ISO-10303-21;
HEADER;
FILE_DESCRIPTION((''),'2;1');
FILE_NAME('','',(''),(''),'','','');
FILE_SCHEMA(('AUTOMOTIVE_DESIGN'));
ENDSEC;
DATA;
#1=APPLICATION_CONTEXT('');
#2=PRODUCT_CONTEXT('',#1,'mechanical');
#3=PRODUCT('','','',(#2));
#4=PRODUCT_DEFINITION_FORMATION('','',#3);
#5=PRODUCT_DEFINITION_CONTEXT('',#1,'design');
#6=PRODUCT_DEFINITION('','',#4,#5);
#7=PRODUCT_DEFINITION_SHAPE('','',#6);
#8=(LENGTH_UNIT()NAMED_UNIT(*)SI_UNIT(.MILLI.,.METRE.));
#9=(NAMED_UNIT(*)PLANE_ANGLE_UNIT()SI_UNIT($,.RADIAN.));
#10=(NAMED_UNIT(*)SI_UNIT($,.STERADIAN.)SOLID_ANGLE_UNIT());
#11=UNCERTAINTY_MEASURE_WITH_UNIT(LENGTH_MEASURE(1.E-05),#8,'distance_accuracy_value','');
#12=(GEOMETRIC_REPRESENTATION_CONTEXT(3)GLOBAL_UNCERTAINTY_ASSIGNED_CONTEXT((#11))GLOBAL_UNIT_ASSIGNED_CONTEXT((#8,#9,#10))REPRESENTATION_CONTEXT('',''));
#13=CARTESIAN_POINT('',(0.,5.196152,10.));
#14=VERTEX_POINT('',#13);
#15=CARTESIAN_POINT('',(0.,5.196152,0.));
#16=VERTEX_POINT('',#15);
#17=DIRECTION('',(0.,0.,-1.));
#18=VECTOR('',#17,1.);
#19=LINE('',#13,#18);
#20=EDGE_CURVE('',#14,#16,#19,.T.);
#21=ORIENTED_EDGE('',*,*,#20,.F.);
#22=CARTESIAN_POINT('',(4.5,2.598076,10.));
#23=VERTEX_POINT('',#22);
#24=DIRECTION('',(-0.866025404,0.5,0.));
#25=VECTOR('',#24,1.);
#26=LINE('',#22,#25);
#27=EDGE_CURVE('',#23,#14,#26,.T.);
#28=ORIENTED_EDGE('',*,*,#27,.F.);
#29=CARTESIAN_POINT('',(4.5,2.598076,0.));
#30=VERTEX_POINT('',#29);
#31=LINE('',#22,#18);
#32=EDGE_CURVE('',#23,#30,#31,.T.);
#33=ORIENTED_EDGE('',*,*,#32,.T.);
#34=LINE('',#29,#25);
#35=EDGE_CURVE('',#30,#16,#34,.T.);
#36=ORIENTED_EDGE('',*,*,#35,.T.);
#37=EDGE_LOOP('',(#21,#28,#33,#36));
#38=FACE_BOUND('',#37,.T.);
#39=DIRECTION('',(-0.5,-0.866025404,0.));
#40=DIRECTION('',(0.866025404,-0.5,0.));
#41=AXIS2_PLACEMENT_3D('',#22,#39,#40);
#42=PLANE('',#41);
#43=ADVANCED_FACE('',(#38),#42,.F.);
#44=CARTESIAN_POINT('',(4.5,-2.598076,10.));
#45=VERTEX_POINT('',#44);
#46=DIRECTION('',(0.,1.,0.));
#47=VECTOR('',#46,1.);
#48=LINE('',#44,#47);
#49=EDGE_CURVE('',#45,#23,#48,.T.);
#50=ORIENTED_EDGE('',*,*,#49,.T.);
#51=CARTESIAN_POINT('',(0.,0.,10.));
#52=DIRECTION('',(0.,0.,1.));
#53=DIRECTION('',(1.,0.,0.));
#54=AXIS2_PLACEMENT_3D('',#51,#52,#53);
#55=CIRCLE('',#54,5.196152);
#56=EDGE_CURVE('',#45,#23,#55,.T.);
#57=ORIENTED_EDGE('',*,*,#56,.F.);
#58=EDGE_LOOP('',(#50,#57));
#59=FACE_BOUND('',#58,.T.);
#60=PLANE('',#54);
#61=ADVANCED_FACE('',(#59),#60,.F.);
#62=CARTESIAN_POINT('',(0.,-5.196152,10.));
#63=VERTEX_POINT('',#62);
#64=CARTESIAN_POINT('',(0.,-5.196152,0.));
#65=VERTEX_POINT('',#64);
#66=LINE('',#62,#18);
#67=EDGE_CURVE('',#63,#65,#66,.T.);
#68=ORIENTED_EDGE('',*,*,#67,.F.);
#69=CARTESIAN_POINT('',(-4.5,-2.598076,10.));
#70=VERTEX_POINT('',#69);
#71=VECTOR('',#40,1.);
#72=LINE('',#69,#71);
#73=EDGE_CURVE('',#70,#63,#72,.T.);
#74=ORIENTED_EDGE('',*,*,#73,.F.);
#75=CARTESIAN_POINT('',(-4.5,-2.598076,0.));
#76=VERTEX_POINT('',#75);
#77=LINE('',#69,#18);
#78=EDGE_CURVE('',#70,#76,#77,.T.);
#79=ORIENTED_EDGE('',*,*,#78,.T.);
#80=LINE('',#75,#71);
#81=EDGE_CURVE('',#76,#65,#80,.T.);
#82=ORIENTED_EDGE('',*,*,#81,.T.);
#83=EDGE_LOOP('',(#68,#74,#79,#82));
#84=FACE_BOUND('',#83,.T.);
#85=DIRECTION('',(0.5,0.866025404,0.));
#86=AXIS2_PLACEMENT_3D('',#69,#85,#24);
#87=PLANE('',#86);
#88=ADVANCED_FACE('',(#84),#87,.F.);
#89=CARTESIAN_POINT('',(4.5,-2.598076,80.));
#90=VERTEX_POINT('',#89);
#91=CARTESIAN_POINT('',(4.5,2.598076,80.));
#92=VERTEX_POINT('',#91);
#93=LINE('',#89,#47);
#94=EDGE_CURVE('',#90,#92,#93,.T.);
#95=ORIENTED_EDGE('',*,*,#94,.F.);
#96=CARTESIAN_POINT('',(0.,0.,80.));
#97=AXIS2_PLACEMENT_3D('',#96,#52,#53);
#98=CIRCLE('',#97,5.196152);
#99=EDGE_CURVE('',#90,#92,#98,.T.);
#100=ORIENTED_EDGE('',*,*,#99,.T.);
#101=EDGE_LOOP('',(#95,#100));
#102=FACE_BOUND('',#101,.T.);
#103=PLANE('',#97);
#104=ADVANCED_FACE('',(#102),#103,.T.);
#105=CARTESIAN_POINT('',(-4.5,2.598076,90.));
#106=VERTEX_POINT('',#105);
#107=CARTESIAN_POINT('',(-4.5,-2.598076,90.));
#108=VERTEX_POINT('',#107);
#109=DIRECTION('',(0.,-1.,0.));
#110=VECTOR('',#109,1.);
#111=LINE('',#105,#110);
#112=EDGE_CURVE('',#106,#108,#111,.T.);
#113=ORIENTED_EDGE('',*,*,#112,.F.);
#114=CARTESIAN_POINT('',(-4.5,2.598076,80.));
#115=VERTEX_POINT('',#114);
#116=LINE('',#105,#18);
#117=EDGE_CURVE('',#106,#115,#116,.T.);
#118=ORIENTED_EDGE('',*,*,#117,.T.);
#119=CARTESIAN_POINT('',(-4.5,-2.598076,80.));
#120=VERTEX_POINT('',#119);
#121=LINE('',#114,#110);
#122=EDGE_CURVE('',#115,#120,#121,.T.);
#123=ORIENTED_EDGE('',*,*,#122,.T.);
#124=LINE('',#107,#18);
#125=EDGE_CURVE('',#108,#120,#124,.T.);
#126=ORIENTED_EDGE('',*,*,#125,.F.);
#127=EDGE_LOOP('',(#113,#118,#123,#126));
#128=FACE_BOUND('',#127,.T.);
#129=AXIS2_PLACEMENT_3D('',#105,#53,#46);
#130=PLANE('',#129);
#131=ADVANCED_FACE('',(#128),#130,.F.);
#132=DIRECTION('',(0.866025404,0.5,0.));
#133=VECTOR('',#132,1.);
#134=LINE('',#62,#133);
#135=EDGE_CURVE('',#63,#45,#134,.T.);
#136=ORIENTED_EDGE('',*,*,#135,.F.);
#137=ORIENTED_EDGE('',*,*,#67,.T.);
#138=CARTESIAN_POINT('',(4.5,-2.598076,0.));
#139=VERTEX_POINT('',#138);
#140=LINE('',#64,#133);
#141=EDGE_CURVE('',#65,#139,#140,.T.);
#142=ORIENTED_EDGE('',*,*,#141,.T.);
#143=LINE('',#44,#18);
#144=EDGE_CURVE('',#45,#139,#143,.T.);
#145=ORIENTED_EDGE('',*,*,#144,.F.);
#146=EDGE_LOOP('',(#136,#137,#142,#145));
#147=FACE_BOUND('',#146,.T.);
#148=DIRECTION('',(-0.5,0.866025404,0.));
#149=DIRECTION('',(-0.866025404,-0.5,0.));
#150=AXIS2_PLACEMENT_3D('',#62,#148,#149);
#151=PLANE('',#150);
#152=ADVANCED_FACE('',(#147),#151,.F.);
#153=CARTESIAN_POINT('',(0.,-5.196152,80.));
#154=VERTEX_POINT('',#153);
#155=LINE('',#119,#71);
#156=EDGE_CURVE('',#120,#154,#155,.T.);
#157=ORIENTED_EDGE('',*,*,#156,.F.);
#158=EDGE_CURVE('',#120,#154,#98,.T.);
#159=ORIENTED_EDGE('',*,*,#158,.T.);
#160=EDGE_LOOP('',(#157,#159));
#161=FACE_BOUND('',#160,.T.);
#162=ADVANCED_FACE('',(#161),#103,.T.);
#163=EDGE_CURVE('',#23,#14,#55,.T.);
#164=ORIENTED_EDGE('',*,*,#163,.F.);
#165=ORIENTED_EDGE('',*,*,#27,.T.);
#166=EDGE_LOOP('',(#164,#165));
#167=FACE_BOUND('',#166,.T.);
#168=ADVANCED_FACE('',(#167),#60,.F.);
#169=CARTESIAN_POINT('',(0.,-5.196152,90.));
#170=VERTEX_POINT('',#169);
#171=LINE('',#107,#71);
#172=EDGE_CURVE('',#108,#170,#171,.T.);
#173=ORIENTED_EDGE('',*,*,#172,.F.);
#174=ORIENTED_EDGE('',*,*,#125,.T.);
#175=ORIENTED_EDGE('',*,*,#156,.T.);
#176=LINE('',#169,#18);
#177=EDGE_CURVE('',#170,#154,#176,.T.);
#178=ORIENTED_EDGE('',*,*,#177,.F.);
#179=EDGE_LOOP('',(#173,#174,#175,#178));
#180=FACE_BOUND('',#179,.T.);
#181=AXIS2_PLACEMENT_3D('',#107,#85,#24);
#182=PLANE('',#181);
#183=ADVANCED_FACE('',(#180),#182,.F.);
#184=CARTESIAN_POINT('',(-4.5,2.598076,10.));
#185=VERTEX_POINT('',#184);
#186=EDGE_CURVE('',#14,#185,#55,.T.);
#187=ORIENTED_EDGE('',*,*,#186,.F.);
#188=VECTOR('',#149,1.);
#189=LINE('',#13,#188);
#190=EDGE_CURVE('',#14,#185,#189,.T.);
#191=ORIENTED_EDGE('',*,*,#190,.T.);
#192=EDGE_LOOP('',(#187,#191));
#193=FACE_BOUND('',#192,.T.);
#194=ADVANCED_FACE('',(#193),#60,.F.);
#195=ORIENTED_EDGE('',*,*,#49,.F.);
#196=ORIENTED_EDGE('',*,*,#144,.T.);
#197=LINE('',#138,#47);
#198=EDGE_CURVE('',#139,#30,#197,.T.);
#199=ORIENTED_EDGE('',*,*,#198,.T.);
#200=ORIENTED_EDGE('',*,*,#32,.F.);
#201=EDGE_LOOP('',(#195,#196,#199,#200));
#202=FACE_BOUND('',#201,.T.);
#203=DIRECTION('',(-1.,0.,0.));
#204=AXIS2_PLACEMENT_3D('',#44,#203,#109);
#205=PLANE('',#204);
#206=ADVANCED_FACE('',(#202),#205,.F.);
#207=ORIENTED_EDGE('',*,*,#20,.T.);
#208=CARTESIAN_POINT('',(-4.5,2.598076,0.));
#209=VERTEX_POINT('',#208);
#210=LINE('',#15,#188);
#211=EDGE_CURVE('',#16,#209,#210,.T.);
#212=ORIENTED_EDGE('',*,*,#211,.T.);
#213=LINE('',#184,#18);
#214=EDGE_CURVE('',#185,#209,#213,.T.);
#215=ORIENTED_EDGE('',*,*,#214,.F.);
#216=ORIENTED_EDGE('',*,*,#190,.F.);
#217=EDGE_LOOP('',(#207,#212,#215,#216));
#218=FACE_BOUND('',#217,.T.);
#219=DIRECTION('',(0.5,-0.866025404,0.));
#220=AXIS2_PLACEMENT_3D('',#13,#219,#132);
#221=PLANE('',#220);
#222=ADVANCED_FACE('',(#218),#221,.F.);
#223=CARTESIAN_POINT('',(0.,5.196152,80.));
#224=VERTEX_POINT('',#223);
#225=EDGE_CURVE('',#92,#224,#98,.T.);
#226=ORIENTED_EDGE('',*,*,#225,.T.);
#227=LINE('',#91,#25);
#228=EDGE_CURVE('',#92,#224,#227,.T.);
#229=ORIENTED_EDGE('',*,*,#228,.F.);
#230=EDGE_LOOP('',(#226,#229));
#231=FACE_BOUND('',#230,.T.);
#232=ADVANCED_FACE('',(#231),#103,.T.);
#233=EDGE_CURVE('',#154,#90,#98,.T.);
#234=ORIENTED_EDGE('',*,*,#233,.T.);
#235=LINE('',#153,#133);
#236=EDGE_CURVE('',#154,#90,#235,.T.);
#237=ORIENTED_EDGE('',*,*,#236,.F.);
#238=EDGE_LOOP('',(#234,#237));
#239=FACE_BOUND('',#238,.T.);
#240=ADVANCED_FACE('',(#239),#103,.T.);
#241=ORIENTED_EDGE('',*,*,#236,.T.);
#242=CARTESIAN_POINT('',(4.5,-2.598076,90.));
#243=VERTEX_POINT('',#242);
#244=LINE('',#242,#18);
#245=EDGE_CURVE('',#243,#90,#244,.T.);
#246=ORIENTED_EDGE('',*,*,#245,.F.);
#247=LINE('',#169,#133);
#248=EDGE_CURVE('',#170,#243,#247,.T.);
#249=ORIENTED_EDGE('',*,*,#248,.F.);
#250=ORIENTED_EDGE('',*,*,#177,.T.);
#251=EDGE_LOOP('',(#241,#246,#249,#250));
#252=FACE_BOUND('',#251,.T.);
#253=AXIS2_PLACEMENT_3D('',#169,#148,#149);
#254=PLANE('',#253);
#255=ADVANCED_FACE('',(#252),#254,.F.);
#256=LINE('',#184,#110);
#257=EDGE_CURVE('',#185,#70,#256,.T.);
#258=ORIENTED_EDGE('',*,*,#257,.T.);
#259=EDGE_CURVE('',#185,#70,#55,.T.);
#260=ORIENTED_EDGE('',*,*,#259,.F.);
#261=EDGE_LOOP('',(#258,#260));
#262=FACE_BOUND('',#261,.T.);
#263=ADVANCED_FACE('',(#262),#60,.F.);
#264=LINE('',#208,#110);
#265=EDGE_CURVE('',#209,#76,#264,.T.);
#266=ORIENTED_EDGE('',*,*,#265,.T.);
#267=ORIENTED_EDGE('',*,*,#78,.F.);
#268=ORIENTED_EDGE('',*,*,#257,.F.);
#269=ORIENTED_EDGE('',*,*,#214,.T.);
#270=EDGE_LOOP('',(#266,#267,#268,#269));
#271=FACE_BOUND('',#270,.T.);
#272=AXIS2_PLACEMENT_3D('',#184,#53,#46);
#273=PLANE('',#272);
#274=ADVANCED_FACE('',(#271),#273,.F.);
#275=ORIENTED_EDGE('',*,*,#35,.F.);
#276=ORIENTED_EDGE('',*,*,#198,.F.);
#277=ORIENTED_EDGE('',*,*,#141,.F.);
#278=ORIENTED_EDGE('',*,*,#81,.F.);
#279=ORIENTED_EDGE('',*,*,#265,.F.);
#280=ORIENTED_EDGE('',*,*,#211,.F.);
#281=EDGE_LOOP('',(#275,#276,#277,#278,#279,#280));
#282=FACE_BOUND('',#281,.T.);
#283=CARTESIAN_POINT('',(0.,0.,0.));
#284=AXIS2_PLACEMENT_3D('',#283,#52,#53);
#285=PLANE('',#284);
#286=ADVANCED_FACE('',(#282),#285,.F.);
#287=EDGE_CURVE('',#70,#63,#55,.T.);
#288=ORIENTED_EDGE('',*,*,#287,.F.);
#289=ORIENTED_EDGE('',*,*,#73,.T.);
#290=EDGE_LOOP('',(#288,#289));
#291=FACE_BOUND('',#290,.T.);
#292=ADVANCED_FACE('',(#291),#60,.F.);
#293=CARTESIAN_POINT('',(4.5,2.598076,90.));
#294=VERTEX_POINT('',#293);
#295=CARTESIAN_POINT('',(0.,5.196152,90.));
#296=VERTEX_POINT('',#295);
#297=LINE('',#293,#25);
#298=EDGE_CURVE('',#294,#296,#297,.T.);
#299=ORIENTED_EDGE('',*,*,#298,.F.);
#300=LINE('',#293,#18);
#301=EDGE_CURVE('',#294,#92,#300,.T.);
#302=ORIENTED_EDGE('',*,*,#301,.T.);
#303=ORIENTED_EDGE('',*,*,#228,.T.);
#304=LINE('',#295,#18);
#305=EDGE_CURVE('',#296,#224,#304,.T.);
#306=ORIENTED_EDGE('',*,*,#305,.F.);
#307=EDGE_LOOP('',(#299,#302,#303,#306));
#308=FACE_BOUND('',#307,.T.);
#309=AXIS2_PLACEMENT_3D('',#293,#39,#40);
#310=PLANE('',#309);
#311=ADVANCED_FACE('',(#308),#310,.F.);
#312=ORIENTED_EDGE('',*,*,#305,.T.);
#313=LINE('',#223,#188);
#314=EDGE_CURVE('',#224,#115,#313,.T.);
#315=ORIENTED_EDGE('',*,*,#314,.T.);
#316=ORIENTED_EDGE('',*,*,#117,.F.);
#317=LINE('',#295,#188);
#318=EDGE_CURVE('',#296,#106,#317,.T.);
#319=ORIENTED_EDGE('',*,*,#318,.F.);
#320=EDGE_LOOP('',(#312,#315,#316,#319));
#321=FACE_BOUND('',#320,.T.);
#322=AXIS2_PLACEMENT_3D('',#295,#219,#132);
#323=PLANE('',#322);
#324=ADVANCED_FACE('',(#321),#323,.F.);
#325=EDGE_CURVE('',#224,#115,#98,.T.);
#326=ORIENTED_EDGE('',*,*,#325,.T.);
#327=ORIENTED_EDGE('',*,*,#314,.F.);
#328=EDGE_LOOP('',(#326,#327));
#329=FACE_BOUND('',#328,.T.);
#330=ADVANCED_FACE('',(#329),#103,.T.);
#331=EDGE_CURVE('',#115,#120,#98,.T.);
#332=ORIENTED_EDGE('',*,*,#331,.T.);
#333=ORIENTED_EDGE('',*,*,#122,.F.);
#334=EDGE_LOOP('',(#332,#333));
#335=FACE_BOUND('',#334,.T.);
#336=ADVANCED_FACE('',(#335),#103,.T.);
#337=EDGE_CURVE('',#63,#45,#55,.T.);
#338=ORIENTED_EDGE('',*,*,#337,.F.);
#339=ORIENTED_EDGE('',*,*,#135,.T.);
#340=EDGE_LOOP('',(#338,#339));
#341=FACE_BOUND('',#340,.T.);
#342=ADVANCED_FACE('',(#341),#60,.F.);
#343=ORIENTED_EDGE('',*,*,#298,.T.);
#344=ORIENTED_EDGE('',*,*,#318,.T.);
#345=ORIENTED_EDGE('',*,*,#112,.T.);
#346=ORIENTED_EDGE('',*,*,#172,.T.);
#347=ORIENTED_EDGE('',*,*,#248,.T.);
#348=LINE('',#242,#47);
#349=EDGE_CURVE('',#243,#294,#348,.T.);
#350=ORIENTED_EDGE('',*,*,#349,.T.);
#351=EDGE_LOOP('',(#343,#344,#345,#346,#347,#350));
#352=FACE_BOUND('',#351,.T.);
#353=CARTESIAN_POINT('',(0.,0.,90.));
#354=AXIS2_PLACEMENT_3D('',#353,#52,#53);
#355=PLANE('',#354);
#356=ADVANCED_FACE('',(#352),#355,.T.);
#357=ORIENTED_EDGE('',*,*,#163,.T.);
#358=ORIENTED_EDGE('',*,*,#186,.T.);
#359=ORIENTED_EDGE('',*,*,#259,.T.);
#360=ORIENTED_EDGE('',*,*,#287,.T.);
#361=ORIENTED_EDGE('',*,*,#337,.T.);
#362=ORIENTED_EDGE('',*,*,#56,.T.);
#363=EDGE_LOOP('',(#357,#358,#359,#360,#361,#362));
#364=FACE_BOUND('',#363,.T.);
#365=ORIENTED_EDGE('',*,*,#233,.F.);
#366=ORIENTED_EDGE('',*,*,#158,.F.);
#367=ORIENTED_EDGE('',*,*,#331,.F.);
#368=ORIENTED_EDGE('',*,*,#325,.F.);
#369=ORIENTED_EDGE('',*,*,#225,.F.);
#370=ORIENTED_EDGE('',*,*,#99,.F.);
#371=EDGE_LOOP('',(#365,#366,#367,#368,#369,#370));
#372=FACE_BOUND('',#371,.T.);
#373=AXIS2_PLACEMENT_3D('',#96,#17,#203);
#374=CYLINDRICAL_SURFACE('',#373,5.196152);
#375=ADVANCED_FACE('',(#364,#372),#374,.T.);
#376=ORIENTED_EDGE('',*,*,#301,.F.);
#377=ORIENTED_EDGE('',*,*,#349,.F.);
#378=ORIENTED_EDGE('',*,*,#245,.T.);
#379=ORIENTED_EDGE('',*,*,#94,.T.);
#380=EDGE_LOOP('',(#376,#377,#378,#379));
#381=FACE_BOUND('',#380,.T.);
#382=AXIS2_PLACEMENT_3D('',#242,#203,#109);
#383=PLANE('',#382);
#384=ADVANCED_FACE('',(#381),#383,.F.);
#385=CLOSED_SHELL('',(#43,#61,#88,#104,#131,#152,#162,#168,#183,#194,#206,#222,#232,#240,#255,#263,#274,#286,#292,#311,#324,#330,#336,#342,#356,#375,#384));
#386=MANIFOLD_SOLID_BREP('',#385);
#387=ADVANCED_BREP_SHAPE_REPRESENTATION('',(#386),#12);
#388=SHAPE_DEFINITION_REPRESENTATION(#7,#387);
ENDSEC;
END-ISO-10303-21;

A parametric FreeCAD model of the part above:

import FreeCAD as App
import Part
import Sketcher

V = App.Vector
Q = App.Units.Quantity


def add_polygon(sketch, points):
    """Adds a closed chain of lines whose ends are joined by coincident constraints."""
    first, n = sketch.GeometryCount, len(points)
    for a, b in zip(points, points[1:] + points[:1]):
        sketch.addGeometry(Part.LineSegment(App.Vector(*a, 0), App.Vector(*b, 0)), False)
    for i in range(n):
        sketch.addConstraint(Sketcher.Constraint("Coincident", first + i, 2, first + (i + 1) % n, 1))

doc = App.newDocument("Part")
body = doc.addObject("PartDesign::Body", "Body")

# Sketch on XY plane
sketch1 = doc.addObject("Sketcher::SketchObject", "Sketch")
body.addObject(sketch1)
sketch1.AttachmentSupport = (doc.XY_Plane, [""])
sketch1.MapMode = "FlatFace"
add_polygon(sketch1, [(0, 5), (-4, 3), (-4, -3), (0, -5), (4, -3), (4, 3)])  # lines 0-5
sketch1.addConstraint(Sketcher.Constraint("Vertical", 1))
sketch1.addConstraint(Sketcher.Constraint("Vertical", 4))
sketch1.addConstraint(Sketcher.Constraint("Symmetric", 0, 2, 3, 2, -1, 1))
sketch1.addConstraint(Sketcher.Constraint("Symmetric", 2, 2, 5, 2, -1, 1))
sketch1.addConstraint(Sketcher.Constraint("PointOnObject", 2, 2, -2))
sketch1.addConstraint(Sketcher.Constraint("Parallel", 2, 5))
sketch1.addConstraint(Sketcher.Constraint("Horizontal", 1, 2, 3, 2))
sketch1.addConstraint(Sketcher.Constraint("Angle", 0, Q("-150 deg")))
sketch1.addConstraint(Sketcher.Constraint("DistanceX", 1, 2, 3, 2, 9.0))
sketch1.addConstraint(Sketcher.Constraint("DistanceY", 1, 2, 1, 1, 5.196152))
pad1 = doc.addObject("PartDesign::Pad", "Pad")
body.addObject(pad1)
pad1.Profile = sketch1
pad1.Length = 10

# Sketch on XY plane
sketch2 = doc.addObject("Sketcher::SketchObject", "Sketch001")
body.addObject(sketch2)
sketch2.AttachmentSupport = (doc.XY_Plane, [""])
sketch2.MapMode = "FlatFace"
sketch2.AttachmentOffset = App.Placement(V(0, 0, 10), App.Rotation())
sketch2.addGeometry(Part.Circle(V(0, 0, 0), V(0, 0, 1), 5), False)
sketch2.addConstraint(Sketcher.Constraint("Coincident", 0, 3, -1, 1))
sketch2.addConstraint(Sketcher.Constraint("Diameter", 0, 10.392305))
pad2 = doc.addObject("PartDesign::Pad", "Pad001")
body.addObject(pad2)
pad2.Profile = sketch2
pad2.Length = 70

# Sketch on XY plane
sketch3 = doc.addObject("Sketcher::SketchObject", "Sketch002")
body.addObject(sketch3)
sketch3.AttachmentSupport = (doc.XY_Plane, [""])
sketch3.MapMode = "FlatFace"
sketch3.AttachmentOffset = App.Placement(V(0, 0, 80), App.Rotation())
add_polygon(sketch3, [(0, 5), (-4, 3), (-4, -3), (0, -5), (4, -3), (4, 3)])  # lines 0-5
sketch3.addConstraint(Sketcher.Constraint("Vertical", 1))
sketch3.addConstraint(Sketcher.Constraint("Vertical", 4))
sketch3.addConstraint(Sketcher.Constraint("Symmetric", 0, 2, 3, 2, -1, 1))
sketch3.addConstraint(Sketcher.Constraint("Symmetric", 2, 2, 5, 2, -1, 1))
sketch3.addConstraint(Sketcher.Constraint("PointOnObject", 2, 2, -2))
sketch3.addConstraint(Sketcher.Constraint("Parallel", 2, 5))
sketch3.addConstraint(Sketcher.Constraint("Horizontal", 1, 2, 3, 2))
sketch3.addConstraint(Sketcher.Constraint("Angle", 0, Q("-150 deg")))
sketch3.addConstraint(Sketcher.Constraint("DistanceX", 1, 2, 3, 2, 9.0))
sketch3.addConstraint(Sketcher.Constraint("DistanceY", 1, 2, 1, 1, 5.196152))
pad3 = doc.addObject("PartDesign::Pad", "Pad002")
body.addObject(pad3)
pad3.Profile = sketch3
pad3.Length = 10

doc.recompute()
